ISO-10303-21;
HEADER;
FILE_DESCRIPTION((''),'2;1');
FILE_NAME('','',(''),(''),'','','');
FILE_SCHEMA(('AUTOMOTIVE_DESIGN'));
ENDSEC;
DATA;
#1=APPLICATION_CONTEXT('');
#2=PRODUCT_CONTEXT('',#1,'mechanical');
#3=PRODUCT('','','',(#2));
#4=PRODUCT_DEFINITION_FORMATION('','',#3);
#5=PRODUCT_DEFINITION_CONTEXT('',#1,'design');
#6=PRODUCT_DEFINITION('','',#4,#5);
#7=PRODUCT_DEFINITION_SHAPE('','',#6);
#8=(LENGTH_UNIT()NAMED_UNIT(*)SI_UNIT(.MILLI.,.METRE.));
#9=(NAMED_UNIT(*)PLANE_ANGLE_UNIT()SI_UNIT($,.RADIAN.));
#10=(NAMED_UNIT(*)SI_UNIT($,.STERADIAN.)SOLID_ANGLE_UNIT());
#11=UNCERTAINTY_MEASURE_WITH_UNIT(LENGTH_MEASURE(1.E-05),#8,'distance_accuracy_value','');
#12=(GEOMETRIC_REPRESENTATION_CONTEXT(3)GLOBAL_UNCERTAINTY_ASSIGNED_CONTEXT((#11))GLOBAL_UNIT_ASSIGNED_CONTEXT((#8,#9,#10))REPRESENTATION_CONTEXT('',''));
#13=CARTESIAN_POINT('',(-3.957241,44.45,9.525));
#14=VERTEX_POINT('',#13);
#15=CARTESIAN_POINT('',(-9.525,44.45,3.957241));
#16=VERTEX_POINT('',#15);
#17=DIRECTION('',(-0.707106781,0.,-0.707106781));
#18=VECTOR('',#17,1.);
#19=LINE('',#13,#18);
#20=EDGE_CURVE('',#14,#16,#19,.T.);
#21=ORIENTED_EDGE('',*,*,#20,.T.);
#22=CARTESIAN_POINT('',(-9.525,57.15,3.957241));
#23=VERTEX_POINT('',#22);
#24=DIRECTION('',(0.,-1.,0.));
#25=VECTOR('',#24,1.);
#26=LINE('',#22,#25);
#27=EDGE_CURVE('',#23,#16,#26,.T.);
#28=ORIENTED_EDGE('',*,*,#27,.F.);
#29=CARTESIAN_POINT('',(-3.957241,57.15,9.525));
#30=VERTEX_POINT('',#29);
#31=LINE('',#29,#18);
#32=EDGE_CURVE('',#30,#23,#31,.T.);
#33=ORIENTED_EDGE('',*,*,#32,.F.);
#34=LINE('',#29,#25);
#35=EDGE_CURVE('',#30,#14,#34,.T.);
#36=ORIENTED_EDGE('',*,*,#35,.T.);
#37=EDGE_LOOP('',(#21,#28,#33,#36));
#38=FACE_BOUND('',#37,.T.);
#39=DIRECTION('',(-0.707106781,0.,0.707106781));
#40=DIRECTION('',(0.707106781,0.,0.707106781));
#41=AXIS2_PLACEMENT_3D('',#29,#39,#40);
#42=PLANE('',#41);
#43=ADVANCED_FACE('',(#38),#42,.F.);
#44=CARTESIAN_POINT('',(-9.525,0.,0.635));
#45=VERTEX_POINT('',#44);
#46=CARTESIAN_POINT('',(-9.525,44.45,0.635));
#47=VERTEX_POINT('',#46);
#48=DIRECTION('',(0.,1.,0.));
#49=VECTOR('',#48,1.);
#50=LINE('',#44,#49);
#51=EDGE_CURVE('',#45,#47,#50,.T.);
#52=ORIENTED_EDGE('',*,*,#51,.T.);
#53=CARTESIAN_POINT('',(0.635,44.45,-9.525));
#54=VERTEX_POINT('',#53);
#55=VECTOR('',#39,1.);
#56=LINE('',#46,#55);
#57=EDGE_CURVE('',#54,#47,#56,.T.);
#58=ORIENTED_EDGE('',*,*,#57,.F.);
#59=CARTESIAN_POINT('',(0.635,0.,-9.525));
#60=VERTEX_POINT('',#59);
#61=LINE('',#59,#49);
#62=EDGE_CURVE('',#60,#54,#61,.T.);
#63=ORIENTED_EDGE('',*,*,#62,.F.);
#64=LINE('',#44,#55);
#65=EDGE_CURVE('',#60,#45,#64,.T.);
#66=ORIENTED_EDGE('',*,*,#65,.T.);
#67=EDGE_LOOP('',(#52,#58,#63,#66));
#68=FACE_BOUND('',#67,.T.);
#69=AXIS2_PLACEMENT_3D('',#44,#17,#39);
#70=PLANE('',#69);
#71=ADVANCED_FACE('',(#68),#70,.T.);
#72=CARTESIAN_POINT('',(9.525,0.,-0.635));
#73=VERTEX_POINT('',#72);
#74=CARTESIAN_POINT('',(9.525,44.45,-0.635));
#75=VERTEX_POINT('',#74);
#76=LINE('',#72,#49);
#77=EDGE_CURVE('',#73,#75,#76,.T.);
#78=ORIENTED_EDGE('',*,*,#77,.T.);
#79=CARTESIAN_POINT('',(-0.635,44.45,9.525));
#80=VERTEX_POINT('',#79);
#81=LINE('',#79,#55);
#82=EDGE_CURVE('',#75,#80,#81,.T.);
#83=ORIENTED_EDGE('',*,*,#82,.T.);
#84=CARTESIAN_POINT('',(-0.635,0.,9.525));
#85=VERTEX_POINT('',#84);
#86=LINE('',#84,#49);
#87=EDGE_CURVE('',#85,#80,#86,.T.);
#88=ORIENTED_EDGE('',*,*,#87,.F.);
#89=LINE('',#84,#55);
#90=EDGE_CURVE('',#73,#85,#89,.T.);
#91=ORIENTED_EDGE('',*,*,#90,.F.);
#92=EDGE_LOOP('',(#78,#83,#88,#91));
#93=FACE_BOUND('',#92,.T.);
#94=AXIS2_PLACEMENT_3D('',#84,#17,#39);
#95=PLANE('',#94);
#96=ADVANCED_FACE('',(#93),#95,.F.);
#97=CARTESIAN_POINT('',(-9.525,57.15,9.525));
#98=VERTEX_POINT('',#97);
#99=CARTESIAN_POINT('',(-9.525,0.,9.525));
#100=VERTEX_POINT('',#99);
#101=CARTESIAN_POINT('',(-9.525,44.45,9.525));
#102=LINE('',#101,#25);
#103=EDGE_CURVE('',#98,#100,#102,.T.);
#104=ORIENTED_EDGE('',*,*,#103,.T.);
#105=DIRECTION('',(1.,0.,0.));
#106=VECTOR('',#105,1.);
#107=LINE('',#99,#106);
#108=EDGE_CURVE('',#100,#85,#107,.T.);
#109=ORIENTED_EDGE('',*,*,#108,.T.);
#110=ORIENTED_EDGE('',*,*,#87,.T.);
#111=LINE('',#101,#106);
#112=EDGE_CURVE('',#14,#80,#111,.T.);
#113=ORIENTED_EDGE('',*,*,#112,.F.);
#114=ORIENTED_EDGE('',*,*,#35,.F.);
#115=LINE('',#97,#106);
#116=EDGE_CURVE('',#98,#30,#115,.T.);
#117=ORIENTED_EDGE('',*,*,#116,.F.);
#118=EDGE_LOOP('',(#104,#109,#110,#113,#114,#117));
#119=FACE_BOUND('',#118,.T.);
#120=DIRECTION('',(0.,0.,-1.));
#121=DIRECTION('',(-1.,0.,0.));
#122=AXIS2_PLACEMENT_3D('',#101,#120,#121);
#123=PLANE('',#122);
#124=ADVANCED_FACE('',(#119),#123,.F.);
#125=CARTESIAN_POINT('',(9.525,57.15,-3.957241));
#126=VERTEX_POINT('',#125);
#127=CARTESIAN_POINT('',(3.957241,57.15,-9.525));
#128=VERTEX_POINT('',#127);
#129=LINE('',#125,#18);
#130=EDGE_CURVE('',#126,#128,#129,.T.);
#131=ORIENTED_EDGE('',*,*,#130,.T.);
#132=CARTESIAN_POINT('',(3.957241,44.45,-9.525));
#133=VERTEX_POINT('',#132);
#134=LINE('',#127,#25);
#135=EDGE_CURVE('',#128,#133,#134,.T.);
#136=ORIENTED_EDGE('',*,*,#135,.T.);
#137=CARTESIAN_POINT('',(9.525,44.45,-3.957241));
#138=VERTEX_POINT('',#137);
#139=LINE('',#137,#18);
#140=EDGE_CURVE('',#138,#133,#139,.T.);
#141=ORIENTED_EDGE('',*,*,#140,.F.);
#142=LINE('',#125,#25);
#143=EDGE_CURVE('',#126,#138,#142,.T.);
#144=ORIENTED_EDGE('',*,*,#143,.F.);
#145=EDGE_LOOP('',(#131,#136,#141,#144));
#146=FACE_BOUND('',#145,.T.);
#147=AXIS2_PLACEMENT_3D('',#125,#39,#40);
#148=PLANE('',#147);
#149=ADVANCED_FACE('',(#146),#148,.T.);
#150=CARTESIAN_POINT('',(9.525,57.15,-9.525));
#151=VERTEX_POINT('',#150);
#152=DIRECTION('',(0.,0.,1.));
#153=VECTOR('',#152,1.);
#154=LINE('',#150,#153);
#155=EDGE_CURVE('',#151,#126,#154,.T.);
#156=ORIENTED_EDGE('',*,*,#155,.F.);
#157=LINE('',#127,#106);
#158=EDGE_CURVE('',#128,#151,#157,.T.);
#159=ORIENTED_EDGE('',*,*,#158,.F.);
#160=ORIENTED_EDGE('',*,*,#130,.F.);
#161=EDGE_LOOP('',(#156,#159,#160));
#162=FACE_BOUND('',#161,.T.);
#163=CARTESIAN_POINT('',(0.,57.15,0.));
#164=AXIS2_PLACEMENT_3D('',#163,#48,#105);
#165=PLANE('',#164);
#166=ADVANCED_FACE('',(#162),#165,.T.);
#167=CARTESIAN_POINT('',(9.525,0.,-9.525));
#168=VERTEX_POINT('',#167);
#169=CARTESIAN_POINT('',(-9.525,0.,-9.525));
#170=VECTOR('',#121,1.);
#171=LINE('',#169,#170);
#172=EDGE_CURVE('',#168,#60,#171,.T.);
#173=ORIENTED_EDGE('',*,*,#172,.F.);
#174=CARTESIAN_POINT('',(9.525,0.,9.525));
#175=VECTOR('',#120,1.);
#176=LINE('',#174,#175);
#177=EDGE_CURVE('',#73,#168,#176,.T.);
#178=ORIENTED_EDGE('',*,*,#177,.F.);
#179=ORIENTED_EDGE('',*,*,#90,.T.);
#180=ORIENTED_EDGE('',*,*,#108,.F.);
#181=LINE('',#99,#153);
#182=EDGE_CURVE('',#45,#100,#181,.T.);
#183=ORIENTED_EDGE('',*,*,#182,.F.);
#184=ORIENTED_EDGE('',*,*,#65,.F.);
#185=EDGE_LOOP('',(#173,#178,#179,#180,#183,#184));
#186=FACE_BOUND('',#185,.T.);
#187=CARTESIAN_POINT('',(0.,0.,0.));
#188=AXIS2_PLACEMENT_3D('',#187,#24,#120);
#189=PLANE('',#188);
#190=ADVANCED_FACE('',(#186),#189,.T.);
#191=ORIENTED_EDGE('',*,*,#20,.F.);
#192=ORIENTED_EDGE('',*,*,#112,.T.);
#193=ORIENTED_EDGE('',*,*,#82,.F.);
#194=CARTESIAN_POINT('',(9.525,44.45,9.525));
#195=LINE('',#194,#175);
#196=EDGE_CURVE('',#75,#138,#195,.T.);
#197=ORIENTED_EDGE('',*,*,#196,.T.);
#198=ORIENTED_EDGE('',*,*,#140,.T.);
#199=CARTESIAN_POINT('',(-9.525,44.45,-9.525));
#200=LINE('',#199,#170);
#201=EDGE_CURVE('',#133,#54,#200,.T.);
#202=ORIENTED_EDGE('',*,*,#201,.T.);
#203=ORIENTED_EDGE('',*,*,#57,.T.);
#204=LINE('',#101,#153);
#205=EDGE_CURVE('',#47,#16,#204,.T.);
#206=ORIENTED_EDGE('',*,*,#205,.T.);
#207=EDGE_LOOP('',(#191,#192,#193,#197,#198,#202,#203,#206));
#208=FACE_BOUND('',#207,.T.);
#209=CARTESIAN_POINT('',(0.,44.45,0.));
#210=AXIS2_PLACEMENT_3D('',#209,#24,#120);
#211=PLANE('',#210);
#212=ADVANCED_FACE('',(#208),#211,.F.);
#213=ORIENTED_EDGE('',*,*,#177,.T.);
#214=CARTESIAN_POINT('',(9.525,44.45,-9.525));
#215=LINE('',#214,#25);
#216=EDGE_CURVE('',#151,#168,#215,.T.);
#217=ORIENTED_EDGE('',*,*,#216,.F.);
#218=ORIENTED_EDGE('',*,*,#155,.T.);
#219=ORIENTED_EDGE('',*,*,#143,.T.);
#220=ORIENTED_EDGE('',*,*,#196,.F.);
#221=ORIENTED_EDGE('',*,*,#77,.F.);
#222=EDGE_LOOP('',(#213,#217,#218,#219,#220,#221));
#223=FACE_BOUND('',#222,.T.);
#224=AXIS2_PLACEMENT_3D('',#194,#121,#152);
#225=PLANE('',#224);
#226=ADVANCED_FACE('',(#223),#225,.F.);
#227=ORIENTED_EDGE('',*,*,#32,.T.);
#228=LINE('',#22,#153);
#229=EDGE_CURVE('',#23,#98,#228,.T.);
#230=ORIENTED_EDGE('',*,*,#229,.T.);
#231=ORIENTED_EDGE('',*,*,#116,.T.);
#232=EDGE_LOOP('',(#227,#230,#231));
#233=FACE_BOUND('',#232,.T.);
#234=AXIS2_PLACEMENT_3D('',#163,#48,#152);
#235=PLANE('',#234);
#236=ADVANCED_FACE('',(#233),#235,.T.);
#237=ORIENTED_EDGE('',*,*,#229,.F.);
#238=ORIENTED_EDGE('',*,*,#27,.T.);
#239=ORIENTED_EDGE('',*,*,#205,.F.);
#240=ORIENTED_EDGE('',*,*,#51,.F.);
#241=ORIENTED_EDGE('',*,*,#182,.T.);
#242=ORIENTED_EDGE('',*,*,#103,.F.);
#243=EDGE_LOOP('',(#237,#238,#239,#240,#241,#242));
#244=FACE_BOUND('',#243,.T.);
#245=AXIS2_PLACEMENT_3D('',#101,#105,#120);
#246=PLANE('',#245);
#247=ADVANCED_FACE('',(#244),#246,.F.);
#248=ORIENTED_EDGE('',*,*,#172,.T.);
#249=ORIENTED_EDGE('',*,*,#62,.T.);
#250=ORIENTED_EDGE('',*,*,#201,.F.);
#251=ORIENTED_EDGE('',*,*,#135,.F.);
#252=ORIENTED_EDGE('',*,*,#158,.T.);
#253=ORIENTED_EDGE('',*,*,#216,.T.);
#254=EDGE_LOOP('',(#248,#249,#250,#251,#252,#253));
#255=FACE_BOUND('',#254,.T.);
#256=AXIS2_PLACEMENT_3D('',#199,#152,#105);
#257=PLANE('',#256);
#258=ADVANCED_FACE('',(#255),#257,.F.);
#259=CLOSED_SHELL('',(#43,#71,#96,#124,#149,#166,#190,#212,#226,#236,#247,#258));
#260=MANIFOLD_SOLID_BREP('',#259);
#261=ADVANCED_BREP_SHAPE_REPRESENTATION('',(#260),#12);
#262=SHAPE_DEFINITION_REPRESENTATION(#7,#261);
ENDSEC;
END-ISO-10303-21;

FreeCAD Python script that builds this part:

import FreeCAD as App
import Part
import Sketcher
from FreeCAD import Vector
Q = App.Units.Quantity


def add_polygon(sketch, points):
    """Adds a closed chain of lines whose ends are joined by coincident constraints."""
    first, n = sketch.GeometryCount, len(points)
    for a, b in zip(points, points[1:] + points[:1]):
        sketch.addGeometry(Part.LineSegment(App.Vector(*a, 0), App.Vector(*b, 0)), False)
    for i in range(n):
        sketch.addConstraint(Sketcher.Constraint("Coincident", first + i, 2, first + (i + 1) % n, 1))

doc = App.newDocument("Part")
body = doc.addObject("PartDesign::Body", "Body")

# Sketch on XZ plane
sketch1 = body.newObject("Sketcher::SketchObject", "Sketch")
sketch1.AttachmentSupport = (doc.getObject("XZ_Plane"), [""])
sketch1.MapMode = "FlatFace"
add_polygon(sketch1, [(-10, -10), (-10, 10), (10, 10), (10, -10)])  # lines 0-3
sketch1.addConstraint(Sketcher.Constraint("Vertical", 0))
sketch1.addConstraint(Sketcher.Constraint("Horizontal", 1))
sketch1.addConstraint(Sketcher.Constraint("Vertical", 2))
sketch1.addConstraint(Sketcher.Constraint("Horizontal", 3))
sketch1.addConstraint(Sketcher.Constraint("Symmetric", 0, 2, 2, 2, -1, 1))
sketch1.addConstraint(Sketcher.Constraint("Equal", 3, 0))
sketch1.addConstraint(Sketcher.Constraint("DistanceX", 1, 1, 1, 2, Q("0.75 in")))
pad1 = body.newObject("PartDesign::Pad", "Pad")
pad1.Profile = sketch1
pad1.Length = Q("1.75 in")
pad1.Reversed = True

# Sketch on XZ plane
sketch2 = body.newObject("Sketcher::SketchObject", "Sketch001")
sketch2.AttachmentSupport = (doc.getObject("XZ_Plane"), [""])
sketch2.MapMode = "FlatFace"
sketch2.AttachmentOffset = App.Placement(Vector(0, 0, -1.75 * 25.4), App.Rotation())
add_polygon(sketch2, [(-10, 10), (-4, 10), (-10, 4)])  # lines 0-2
sketch2.addConstraint(Sketcher.Constraint("Horizontal", 0))
sketch2.addConstraint(Sketcher.Constraint("Vertical", 2))
sketch2.addConstraint(Sketcher.Constraint("Equal", 0, 2))
sketch2.addConstraint(Sketcher.Constraint("Distance", 1, Q("0.31 in")))
sketch2.addConstraint(Sketcher.Constraint("DistanceY", -1, 1, 0, 2, Q("0.375 in")))
sketch2.addConstraint(Sketcher.Constraint("DistanceX", 1, 2, -1, 1, Q("0.375 in")))
pad2 = body.newObject("PartDesign::Pad", "Pad001")
pad2.Profile = sketch2
pad2.Length = Q("0.5 in")
pad2.Reversed = True
doc.recompute()

datumplane = body.newObject("PartDesign::Plane", "DatumPlane")
datumplane.Placement = App.Placement(Vector(0, 0, 0), App.Rotation(Vector(-0.707106781, 0, -0.707106781), Vector(0, -1, 0), Vector(-0.707106781, 0, 0.707106781), "ZXY"))
mirrored = body.newObject("PartDesign::Mirrored", "Mirrored")
mirrored.Originals = [pad2]
mirrored.MirrorPlane = (datumplane, [""])
body.Tip = mirrored

# Sketch on XZ plane
sketch3 = body.newObject("Sketcher::SketchObject", "Sketch002")
sketch3.AttachmentSupport = (doc.getObject("XZ_Plane"), [""])
sketch3.MapMode = "FlatFace"
sketch3.AttachmentOffset = App.Placement(Vector(0, 0, -1.75 * 25.4), App.Rotation())
add_polygon(sketch3, [(-1, 10), (10, 10), (10, -1)])  # lines 0-2
sketch3.addConstraint(Sketcher.Constraint("Horizontal", 0))
sketch3.addConstraint(Sketcher.Constraint("Vertical", 1))
sketch3.addConstraint(Sketcher.Constraint("Equal", 0, 1))
sketch3.addConstraint(Sketcher.Constraint("DistanceX", 0, 1, 0, 2, Q("0.4 in")))
sketch3.addConstraint(Sketcher.Constraint("DistanceX", -1, 1, 0, 2, Q("0.375 in")))
sketch3.addConstraint(Sketcher.Constraint("DistanceY", -1, 1, 0, 2, Q("0.375 in")))
pocket1 = body.newObject("PartDesign::Pocket", "Pocket")
pocket1.Profile = sketch3
pocket1.Type = "ThroughAll"
pocket1.Reversed = True
doc.recompute()

datumplane2 = body.newObject("PartDesign::Plane", "DatumPlane001")
datumplane2.Placement = App.Placement(Vector(0, 0, 0), App.Rotation(Vector(0.707106781, 0, -0.707106781), Vector(0, -1, 0), Vector(-0.707106781, 0, -0.707106781), "ZXY"))
mirrored2 = body.newObject("PartDesign::Mirrored", "Mirrored001")
mirrored2.Originals = [pocket1]
mirrored2.MirrorPlane = (datumplane2, [""])
body.Tip = mirrored2

doc.recompute()
